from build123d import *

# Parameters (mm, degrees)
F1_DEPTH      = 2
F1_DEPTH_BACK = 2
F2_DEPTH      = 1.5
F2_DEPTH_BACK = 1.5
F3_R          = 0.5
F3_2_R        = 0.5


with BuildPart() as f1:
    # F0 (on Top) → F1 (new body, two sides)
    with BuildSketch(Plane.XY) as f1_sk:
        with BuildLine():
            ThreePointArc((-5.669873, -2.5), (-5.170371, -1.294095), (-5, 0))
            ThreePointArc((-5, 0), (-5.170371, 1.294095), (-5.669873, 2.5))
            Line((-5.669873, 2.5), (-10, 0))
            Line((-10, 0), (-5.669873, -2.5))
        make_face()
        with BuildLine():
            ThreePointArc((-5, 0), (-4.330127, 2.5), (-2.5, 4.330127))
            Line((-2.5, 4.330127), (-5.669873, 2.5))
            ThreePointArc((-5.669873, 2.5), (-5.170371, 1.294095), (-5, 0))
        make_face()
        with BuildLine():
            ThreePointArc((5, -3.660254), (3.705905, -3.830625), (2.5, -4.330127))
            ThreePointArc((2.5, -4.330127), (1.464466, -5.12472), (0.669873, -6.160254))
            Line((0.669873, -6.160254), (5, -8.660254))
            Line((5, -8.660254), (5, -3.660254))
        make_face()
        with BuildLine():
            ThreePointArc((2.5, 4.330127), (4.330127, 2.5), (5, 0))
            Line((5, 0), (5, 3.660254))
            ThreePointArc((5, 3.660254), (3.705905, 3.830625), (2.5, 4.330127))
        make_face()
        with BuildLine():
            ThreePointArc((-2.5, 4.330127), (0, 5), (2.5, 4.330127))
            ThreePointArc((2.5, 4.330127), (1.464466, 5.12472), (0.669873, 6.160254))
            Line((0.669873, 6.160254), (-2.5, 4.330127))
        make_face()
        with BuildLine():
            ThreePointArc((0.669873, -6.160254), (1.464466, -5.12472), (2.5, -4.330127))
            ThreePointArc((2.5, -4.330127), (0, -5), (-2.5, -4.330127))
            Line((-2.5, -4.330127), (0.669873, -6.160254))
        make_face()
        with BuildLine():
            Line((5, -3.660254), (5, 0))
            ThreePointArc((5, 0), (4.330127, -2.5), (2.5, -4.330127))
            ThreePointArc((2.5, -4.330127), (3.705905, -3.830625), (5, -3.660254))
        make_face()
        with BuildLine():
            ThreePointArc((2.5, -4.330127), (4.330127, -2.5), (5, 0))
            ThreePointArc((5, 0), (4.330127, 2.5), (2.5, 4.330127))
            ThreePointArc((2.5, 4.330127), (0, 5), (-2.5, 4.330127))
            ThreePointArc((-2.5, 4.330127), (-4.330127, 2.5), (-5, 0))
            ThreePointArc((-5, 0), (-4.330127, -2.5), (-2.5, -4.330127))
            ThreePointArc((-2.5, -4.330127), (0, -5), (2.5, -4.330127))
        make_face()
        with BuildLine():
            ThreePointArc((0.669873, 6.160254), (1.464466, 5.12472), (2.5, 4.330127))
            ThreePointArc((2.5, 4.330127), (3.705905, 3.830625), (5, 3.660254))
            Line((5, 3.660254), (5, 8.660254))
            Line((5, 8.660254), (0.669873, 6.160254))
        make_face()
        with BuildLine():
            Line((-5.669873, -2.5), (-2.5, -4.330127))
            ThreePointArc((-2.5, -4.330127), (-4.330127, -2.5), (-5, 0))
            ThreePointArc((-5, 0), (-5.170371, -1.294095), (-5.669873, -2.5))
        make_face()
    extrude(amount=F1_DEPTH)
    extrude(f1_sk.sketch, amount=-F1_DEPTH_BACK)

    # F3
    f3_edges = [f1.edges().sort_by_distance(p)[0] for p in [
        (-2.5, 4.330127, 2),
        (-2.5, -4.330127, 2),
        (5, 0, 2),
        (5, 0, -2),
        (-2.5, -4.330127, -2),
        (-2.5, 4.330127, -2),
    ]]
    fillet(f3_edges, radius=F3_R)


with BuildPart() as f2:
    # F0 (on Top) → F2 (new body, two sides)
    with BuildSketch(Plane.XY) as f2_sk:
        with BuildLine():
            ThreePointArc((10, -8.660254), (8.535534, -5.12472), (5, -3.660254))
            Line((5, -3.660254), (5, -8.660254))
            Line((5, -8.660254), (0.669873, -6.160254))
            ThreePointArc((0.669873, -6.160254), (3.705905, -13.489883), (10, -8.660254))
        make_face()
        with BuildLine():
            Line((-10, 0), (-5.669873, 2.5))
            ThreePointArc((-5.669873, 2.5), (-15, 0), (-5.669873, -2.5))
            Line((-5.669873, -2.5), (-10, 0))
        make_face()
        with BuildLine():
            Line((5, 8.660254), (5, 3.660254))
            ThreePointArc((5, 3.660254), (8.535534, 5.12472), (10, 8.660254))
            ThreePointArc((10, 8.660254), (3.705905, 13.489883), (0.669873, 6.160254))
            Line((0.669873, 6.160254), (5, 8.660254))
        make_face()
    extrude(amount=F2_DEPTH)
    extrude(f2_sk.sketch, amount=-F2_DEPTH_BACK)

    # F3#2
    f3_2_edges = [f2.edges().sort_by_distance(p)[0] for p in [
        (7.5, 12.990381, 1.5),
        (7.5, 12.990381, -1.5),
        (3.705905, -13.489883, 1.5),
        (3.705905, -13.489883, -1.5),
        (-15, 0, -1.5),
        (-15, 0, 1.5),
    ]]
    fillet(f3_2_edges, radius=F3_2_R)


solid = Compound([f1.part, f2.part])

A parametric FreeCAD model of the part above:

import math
import FreeCAD as App
import Part
import Sketcher
Q = App.Units.Quantity


def edges_at(feature, points):
    """Names of the edges that pass closest to the given points."""
    edges = feature.Shape.Edges
    near = lambda p: min(range(len(edges)), key=lambda i: edges[i].distToShape(Part.Vertex(*p))[0])
    return sorted({f"Edge{near(p) + 1}" for p in points})

doc = App.newDocument("Part")
body = doc.addObject("PartDesign::Body", "Body")

# Sketch on XY plane
sketch1 = body.newObject("Sketcher::SketchObject", "Sketch")
sketch1.AttachmentSupport = (doc.getObject("XY_Plane"), [""])
sketch1.MapMode = "FlatFace"
sketch1.addGeometry([
    Part.LineSegment(App.Vector(0.7, -6.2, 0), App.Vector(5, -8.7, 0)),  # 0
    Part.LineSegment(App.Vector(5, -8.7, 0), App.Vector(5, 8.7, 0)),  # 1
    Part.LineSegment(App.Vector(5, 8.7, 0), App.Vector(0.7, 6.2, 0)),  # 2
    Part.LineSegment(App.Vector(0.7, 6.2, 0), App.Vector(-5.7, 2.5, 0)),  # 3
    Part.LineSegment(App.Vector(-5.7, 2.5, 0), App.Vector(-10, 0, 0)),  # 4
    Part.LineSegment(App.Vector(-10, 0, 0), App.Vector(-5.7, -2.5, 0)),  # 5
    Part.LineSegment(App.Vector(-5.7, -2.5, 0), App.Vector(0.7, -6.2, 0)),  # 6
], False)
sketch1.addConstraint([
    Sketcher.Constraint("Coincident", 0, 2, 1, 1),
    Sketcher.Constraint("Coincident", 1, 2, 2, 1),
    Sketcher.Constraint("Coincident", 2, 2, 3, 1),
    Sketcher.Constraint("Coincident", 3, 2, 4, 1),
    Sketcher.Constraint("Coincident", 4, 2, 5, 1),
    Sketcher.Constraint("Coincident", 5, 2, 6, 1),
    Sketcher.Constraint("Coincident", 6, 2, 0, 1),
    Sketcher.Constraint("Vertical", 1),
    Sketcher.Constraint("Symmetric", 3, 2, 5, 2, -1),
    Sketcher.Constraint("Symmetric", 2, 2, 6, 2, -1),
    Sketcher.Constraint("PointOnObject", 4, 2, -1),
    Sketcher.Constraint("Parallel", 2, 3),
    Sketcher.Constraint("Parallel", 3, 4),
    Sketcher.Constraint("Parallel", 0, 5),
    Sketcher.Constraint("Equal", 2, 4),
    Sketcher.Constraint("Angle", 0, Q("-30 deg")),
    Sketcher.Constraint("Distance", 0, Q("5 mm")),
    Sketcher.Constraint("DistanceX", -1, 1, 0, 2, Q("5 mm")),
    Sketcher.Constraint("DistanceX", 4, 2, -1, 1, Q("10 mm")),
])
pad1 = body.newObject("PartDesign::Pad", "Pad")
pad1.Profile = sketch1
pad1.Type = "TwoLengths"
pad1.Length = 2
pad1.Length2 = 2
doc.recompute()

fillet = body.newObject("PartDesign::Fillet", "Fillet")
fillet.Base = (pad1, edges_at(pad1, [
    (-2.5, 4.33, 2),
    (-2.5, -4.33, 2),
    (5, 0, 2),
    (5, 0, -2),
    (-2.5, -4.33, -2),
    (-2.5, 4.33, -2),
]))
fillet.Radius = 0.5
body2 = doc.addObject("PartDesign::Body", "Body001")
body2.AllowCompound = True

# Sketch on XY plane
sketch2 = body2.newObject("Sketcher::SketchObject", "Sketch001")
sketch2.AttachmentSupport = (doc.getObject("XY_Plane001"), [""])
sketch2.MapMode = "FlatFace"
sketch2.addGeometry([
    Part.ArcOfCircle(Part.Circle(App.Vector(5, -8.7, 0), App.Vector(0, 0, 1), 5), math.radians(0), math.radians(90)),  # 0
    Part.LineSegment(App.Vector(5, -3.7, 0), App.Vector(5, -8.7, 0)),  # 1
    Part.LineSegment(App.Vector(5, -8.7, 0), App.Vector(0.7, -6.2, 0)),  # 2
    Part.ArcOfCircle(Part.Circle(App.Vector(5, -8.7, 0), App.Vector(0, 0, 1), 5), math.radians(150), math.radians(360)),  # 3
    Part.LineSegment(App.Vector(-10, 0, 0), App.Vector(-5.7, 2.5, 0)),  # 4
    Part.ArcOfCircle(Part.Circle(App.Vector(-10, 0, 0), App.Vector(0, 0, 1), 5), math.radians(30), math.radians(330)),  # 5
    Part.LineSegment(App.Vector(-5.7, -2.5, 0), App.Vector(-10, 0, 0)),  # 6
    Part.LineSegment(App.Vector(5, 8.7, 0), App.Vector(5, 3.7, 0)),  # 7
    Part.ArcOfCircle(Part.Circle(App.Vector(5, 8.7, 0), App.Vector(0, 0, 1), 5), math.radians(-90), math.radians(0)),  # 8
    Part.ArcOfCircle(Part.Circle(App.Vector(5, 8.7, 0), App.Vector(0, 0, 1), 5), math.radians(0), math.radians(210)),  # 9
    Part.LineSegment(App.Vector(0.7, 6.2, 0), App.Vector(5, 8.7, 0)),  # 10
], False)
sketch2.addConstraint([
    Sketcher.Constraint("Coincident", 0, 2, 1, 1),
    Sketcher.Constraint("Coincident", 1, 2, 2, 1),
    Sketcher.Constraint("Coincident", 2, 2, 3, 1),
    Sketcher.Constraint("Tangent", 3, 2, 0, 1),
    Sketcher.Constraint("Coincident", 4, 2, 5, 1),
    Sketcher.Constraint("Coincident", 5, 2, 6, 1),
    Sketcher.Constraint("Coincident", 6, 2, 4, 1),
    Sketcher.Constraint("Coincident", 7, 2, 8, 1),
    Sketcher.Constraint("Tangent", 8, 2, 9, 1),
    Sketcher.Constraint("Coincident", 9, 2, 10, 1),
    Sketcher.Constraint("Coincident", 10, 2, 7, 1),
    Sketcher.Constraint("Vertical", 1),
    Sketcher.Constraint("Vertical", 7),
    Sketcher.Constraint("Coincident", 1, 2, 0, 3),
    Sketcher.Constraint("Coincident", 6, 2, 5, 3),
    Sketcher.Constraint("Coincident", 10, 2, 8, 3),
    Sketcher.Constraint("Equal", 0, 3),
    Sketcher.Constraint("Equal", 3, 5),
    Sketcher.Constraint("Equal", 5, 8),
    Sketcher.Constraint("Equal", 8, 9),
    Sketcher.Constraint("Symmetric", 0, 3, 8, 3, -1),
    Sketcher.Constraint("Symmetric", 4, 2, 5, 2, -1),
    Sketcher.Constraint("Parallel", 2, 6),
    Sketcher.Constraint("Parallel", 4, 10),
    Sketcher.Constraint("Horizontal", 1, 2, 3, 2),
    Sketcher.Constraint("Horizontal", 9, 3, 8, 2),
    Sketcher.Constraint("Radius", 0, Q("5 mm")),
    Sketcher.Constraint("Angle", 2, Q("150 deg")),
    Sketcher.Constraint("DistanceX", -1, 1, 0, 3, Q("5 mm")),
    Sketcher.Constraint("DistanceX", 5, 3, -1, 1, Q("10 mm")),
    Sketcher.Constraint("DistanceY", 0, 2, 7, 2, Q("7.320508 mm")),
])
pad2 = body2.newObject("PartDesign::Pad", "Pad001")
pad2.Profile = sketch2
pad2.Type = "TwoLengths"
pad2.Length = 1.5
pad2.Length2 = 1.5
doc.recompute()

fillet2 = body2.newObject("PartDesign::Fillet", "Fillet001")
fillet2.Base = (pad2, edges_at(pad2, [
    (3.706, 13.49, 1.5),
    (3.706, 13.49, -1.5),
    (3.706, -13.49, 1.5),
    (3.706, -13.49, -1.5),
    (-15, 0, -1.5),
    (-15, 0, 1.5),
]))
fillet2.Radius = 0.5

doc.recompute()
